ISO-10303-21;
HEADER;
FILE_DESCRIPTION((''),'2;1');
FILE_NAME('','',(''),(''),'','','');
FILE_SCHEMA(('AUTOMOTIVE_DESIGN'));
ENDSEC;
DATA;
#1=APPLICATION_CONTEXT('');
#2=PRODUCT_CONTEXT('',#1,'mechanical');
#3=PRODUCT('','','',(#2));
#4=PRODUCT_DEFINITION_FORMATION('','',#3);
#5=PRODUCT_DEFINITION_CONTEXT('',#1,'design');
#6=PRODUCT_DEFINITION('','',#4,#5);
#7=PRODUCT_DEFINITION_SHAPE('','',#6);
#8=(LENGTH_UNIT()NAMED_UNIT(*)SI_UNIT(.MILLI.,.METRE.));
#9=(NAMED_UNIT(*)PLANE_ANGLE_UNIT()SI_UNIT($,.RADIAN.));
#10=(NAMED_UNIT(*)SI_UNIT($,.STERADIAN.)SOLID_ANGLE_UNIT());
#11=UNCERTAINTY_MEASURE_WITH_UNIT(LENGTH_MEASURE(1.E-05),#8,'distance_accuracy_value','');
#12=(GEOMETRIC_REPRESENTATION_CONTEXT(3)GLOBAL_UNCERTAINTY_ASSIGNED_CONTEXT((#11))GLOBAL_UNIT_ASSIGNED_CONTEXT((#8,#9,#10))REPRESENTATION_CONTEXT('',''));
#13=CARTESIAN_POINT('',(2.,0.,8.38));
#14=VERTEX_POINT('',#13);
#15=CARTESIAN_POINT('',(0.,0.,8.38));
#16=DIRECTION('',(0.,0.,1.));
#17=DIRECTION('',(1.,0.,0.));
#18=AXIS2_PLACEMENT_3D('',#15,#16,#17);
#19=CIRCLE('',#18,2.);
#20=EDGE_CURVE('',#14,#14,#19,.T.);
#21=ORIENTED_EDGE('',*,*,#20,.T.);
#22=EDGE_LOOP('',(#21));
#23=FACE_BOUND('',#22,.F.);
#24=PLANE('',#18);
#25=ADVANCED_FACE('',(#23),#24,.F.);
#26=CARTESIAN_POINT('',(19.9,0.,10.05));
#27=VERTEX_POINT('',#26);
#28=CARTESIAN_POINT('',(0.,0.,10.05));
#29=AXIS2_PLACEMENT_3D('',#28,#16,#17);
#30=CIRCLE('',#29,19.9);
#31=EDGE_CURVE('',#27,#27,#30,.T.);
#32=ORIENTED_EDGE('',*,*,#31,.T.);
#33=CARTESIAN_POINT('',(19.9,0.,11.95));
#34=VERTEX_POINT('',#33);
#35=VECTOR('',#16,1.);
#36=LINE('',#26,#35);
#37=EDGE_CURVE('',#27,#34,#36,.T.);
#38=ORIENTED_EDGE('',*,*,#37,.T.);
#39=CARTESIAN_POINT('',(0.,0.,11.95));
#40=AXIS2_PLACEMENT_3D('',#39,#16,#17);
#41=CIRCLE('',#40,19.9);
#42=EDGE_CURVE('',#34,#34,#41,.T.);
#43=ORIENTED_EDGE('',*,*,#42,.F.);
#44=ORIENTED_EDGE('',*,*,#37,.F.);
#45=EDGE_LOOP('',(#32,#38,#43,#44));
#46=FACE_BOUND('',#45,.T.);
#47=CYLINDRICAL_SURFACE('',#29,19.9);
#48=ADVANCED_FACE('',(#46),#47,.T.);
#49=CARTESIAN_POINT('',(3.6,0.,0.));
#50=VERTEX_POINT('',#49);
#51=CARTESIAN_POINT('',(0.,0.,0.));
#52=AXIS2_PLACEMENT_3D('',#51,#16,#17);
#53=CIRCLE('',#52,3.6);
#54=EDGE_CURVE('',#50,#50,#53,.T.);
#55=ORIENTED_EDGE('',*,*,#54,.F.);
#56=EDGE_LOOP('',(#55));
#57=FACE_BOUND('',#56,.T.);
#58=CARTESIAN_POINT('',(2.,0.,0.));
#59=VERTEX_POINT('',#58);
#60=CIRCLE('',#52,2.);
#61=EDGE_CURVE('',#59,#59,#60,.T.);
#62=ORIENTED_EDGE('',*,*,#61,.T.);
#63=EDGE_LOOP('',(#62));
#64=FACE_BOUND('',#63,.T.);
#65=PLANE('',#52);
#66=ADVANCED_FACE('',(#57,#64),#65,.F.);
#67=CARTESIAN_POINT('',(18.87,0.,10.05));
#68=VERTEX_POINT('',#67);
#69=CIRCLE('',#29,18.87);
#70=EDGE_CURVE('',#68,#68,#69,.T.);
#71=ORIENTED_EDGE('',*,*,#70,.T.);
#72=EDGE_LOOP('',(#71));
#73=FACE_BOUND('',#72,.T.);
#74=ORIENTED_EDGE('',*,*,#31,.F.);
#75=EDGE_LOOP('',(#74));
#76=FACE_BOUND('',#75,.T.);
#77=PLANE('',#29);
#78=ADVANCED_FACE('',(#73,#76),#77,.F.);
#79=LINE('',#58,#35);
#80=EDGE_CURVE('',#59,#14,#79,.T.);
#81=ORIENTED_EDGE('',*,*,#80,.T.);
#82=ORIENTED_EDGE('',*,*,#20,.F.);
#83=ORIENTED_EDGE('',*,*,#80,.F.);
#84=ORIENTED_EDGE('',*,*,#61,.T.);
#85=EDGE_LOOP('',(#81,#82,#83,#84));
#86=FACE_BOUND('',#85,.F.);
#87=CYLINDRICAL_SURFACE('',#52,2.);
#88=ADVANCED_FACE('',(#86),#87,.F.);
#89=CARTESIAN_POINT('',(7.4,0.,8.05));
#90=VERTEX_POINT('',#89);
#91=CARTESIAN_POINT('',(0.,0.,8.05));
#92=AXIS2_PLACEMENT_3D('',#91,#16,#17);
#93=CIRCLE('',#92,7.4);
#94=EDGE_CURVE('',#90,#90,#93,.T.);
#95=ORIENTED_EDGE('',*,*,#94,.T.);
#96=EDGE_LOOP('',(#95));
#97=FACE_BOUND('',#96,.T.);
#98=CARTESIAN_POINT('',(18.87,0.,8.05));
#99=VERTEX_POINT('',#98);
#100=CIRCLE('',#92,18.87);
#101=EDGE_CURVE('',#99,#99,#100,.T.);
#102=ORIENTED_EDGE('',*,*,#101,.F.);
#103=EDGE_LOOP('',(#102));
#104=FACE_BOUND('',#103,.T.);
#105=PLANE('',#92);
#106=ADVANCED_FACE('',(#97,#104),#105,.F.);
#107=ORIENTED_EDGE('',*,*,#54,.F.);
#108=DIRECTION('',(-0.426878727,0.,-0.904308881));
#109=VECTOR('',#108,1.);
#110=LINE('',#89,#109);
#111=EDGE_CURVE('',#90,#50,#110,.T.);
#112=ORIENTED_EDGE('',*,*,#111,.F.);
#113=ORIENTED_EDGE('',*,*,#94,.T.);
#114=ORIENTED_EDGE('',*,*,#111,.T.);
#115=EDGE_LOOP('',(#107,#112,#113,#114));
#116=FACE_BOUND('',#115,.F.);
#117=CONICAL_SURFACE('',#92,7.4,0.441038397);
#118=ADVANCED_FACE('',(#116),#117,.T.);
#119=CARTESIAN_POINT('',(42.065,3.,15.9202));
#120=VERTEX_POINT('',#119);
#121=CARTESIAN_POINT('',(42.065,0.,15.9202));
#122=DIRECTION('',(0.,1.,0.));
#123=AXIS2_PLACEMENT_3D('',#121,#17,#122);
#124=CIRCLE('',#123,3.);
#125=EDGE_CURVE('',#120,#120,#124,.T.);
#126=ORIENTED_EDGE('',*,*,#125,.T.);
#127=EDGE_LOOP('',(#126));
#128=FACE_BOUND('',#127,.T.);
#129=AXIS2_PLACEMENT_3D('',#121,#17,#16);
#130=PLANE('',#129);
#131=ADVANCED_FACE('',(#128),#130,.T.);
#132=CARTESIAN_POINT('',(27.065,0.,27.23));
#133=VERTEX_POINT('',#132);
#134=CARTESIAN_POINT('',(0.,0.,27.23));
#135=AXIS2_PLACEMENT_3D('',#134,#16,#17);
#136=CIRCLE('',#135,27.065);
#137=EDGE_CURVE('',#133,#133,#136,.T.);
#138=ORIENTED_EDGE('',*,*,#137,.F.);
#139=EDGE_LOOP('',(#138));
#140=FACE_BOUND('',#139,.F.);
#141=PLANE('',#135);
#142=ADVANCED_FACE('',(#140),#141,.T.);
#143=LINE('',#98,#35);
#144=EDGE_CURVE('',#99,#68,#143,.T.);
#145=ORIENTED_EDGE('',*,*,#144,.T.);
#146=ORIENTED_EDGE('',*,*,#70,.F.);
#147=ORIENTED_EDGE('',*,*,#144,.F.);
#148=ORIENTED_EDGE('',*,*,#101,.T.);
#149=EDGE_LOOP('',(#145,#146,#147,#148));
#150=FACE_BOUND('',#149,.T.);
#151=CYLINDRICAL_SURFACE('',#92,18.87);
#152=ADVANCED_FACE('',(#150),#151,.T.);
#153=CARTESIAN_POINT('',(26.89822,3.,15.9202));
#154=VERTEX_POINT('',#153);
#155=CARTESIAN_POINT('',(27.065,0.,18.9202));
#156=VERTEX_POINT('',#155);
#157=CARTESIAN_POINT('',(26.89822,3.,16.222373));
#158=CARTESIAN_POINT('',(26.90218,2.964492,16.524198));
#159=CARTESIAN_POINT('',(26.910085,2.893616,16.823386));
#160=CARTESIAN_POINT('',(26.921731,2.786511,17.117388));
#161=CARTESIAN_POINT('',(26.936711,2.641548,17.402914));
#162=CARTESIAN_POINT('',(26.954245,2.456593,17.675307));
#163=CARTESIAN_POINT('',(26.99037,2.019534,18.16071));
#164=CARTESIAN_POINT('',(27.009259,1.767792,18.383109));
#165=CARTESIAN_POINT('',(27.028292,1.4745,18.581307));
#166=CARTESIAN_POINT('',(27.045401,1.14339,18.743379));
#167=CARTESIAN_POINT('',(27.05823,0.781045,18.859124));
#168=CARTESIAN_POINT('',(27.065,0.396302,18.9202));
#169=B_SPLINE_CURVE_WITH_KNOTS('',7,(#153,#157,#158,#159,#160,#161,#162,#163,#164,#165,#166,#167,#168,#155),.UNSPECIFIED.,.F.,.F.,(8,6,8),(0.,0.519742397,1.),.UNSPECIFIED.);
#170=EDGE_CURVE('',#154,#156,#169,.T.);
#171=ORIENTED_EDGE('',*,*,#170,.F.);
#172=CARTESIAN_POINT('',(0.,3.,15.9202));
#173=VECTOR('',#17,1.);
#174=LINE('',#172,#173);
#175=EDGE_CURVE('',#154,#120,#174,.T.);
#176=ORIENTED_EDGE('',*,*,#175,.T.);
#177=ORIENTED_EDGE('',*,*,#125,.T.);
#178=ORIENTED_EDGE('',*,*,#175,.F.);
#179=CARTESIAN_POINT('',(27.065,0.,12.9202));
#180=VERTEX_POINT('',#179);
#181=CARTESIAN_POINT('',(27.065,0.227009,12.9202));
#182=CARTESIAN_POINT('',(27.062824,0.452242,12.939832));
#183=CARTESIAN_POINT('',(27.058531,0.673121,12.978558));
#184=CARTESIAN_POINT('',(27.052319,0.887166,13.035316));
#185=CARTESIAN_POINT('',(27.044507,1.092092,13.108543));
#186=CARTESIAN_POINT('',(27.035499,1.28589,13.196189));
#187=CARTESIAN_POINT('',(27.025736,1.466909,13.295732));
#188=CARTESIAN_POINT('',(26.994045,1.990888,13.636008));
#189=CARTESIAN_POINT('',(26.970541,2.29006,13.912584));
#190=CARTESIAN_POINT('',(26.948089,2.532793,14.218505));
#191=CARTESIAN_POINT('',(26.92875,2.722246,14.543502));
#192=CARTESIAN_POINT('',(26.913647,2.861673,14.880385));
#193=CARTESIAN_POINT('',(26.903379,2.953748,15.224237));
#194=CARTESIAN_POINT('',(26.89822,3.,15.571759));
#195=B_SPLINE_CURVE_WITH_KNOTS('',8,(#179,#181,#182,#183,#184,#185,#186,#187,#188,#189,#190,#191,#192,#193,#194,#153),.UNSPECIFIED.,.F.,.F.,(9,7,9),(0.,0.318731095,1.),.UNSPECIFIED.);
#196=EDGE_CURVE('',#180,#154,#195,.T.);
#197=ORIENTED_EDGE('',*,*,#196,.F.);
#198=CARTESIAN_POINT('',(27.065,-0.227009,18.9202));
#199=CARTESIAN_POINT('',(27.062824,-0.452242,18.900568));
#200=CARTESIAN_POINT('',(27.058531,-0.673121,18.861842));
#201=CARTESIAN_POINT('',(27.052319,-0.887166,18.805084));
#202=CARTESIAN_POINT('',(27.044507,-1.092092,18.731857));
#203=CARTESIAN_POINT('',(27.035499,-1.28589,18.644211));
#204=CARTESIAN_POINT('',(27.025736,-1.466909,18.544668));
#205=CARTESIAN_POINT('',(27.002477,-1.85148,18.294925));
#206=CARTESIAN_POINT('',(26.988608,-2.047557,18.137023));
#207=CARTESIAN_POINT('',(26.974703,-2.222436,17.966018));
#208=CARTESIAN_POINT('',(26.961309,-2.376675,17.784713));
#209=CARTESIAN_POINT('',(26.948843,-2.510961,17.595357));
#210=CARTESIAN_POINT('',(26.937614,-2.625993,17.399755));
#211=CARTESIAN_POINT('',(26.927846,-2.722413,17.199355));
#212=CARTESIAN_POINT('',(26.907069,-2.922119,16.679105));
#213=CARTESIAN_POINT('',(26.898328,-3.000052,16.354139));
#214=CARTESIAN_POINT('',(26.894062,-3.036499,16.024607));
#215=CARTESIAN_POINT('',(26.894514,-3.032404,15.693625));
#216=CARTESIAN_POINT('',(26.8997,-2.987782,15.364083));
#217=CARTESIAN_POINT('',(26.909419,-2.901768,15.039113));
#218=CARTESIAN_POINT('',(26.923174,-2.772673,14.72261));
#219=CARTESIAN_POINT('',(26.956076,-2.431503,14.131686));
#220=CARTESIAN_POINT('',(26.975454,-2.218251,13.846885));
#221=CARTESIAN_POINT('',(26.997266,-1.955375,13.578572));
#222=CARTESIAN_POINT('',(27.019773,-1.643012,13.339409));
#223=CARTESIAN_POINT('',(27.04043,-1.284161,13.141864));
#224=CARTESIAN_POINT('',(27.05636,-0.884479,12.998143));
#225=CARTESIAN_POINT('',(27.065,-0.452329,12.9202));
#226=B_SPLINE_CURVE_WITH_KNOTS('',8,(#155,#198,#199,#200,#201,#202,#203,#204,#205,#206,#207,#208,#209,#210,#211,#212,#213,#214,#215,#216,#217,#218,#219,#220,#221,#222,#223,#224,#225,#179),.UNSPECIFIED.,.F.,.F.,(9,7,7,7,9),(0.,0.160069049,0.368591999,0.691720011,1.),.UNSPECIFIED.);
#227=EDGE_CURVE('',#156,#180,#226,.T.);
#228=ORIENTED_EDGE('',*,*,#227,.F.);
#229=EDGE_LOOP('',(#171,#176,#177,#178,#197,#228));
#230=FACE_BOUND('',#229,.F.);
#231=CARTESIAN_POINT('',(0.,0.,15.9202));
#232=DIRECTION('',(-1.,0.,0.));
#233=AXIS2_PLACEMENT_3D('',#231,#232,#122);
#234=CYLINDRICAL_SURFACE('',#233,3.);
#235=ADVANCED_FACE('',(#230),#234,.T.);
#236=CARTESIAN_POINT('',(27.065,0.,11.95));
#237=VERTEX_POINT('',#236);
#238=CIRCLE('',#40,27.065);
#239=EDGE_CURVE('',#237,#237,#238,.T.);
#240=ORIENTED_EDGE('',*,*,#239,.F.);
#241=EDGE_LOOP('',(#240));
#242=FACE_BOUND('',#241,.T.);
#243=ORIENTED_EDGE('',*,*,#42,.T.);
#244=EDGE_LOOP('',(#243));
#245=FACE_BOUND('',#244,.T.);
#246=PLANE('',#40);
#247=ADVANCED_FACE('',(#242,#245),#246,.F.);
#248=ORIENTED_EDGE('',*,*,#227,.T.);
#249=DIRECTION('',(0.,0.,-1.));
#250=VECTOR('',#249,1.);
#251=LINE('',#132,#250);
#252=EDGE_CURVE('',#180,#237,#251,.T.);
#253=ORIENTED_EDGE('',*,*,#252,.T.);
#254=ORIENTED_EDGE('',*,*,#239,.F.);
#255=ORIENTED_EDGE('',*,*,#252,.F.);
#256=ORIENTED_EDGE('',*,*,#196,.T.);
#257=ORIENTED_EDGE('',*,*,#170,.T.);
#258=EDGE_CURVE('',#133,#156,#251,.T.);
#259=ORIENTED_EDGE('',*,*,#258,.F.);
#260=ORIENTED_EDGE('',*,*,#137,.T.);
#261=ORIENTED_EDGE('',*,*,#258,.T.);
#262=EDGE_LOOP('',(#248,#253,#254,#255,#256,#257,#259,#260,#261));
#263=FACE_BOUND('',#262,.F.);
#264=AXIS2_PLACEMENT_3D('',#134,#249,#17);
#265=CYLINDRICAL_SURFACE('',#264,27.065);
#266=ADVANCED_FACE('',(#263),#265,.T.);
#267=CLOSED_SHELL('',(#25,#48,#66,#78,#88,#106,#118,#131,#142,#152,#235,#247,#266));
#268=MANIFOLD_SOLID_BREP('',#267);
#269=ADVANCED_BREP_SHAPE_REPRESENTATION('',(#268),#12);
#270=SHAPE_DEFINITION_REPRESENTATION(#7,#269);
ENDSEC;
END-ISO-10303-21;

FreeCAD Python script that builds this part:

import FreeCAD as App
import Part
import Sketcher

doc = App.newDocument("Part")
body = doc.addObject("PartDesign::Body", "Body")

sketch1 = body.newObject("Sketcher::SketchObject", "Sketch")
sketch1.AttachmentSupport = (doc.getObject("XZ_Plane"), [""])
sketch1.MapMode = "FlatFace"
sketch1.addGeometry([
    Part.LineSegment(App.Vector(27.1, 27.2, 0), App.Vector(0, 27.2, 0)),
    Part.LineSegment(App.Vector(0, 27.2, 0), App.Vector(0, 8.4, 0)),
    Part.LineSegment(App.Vector(0, 8.4, 0), App.Vector(2, 8.4, 0)),
    Part.LineSegment(App.Vector(2, 8.4, 0), App.Vector(2, 0, 0)),
    Part.LineSegment(App.Vector(2, 0, 0), App.Vector(3.6, 0, 0)),
    Part.LineSegment(App.Vector(3.6, 0, 0), App.Vector(7.4, 8.1, 0)),
    Part.LineSegment(App.Vector(7.4, 8.1, 0), App.Vector(18.9, 8.1, 0)),
    Part.LineSegment(App.Vector(18.9, 8.1, 0), App.Vector(18.9, 10.1, 0)),
    Part.LineSegment(App.Vector(18.9, 10.1, 0), App.Vector(19.9, 10.1, 0)),
    Part.LineSegment(App.Vector(19.9, 10.1, 0), App.Vector(19.9, 11.9, 0)),
    Part.LineSegment(App.Vector(19.9, 11.9, 0), App.Vector(27.1, 11.9, 0)),
    Part.LineSegment(App.Vector(27.1, 11.9, 0), App.Vector(27.1, 27.2, 0)),
], False)
sketch1.addConstraint([
    Sketcher.Constraint("Coincident", 0, 2, 1, 1),
    Sketcher.Constraint("Coincident", 1, 2, 2, 1),
    Sketcher.Constraint("Coincident", 2, 2, 3, 1),
    Sketcher.Constraint("Coincident", 3, 2, 4, 1),
    Sketcher.Constraint("Coincident", 4, 2, 5, 1),
    Sketcher.Constraint("Coincident", 5, 2, 6, 1),
    Sketcher.Constraint("Coincident", 6, 2, 7, 1),
    Sketcher.Constraint("Coincident", 7, 2, 8, 1),
    Sketcher.Constraint("Coincident", 8, 2, 9, 1),
    Sketcher.Constraint("Coincident", 9, 2, 10, 1),
    Sketcher.Constraint("Coincident", 10, 2, 11, 1),
    Sketcher.Constraint("Coincident", 11, 2, 0, 1),
    Sketcher.Constraint("Horizontal", 0),
    Sketcher.Constraint("Vertical", 1),
    Sketcher.Constraint("Horizontal", 2),
    Sketcher.Constraint("Vertical", 3),
    Sketcher.Constraint("Horizontal", 4),
    Sketcher.Constraint("Horizontal", 6),
    Sketcher.Constraint("Vertical", 7),
    Sketcher.Constraint("Horizontal", 8),
    Sketcher.Constraint("Vertical", 9),
    Sketcher.Constraint("Horizontal", 10),
    Sketcher.Constraint("Vertical", 11),
    Sketcher.Constraint("PointOnObject", 0, 2, -2),
    Sketcher.Constraint("PointOnObject", 3, 2, -1),
    Sketcher.Constraint("Equal", 2, 7),
    Sketcher.Constraint("DistanceX", 2, 1, 2, 2, 2.0),
    Sketcher.Constraint("DistanceX", 4, 1, 4, 2, 1.6),
    Sketcher.Constraint("DistanceY", 9, 1, 9, 2, 1.9),
    Sketcher.Constraint("DistanceX", 6, 1, 6, 2, 11.47),
    Sketcher.Constraint("DistanceX", 8, 1, 8, 2, 1.03),
    Sketcher.Constraint("DistanceY", 1, 2, 1, 1, 18.85),
    Sketcher.Constraint("DistanceY", 3, 2, 3, 1, 8.38),
    Sketcher.Constraint("DistanceY", 11, 1, 11, 2, 15.28),
    Sketcher.Constraint("DistanceX", -1, 1, 5, 2, 7.4),
    Sketcher.Constraint("DistanceX", 0, 2, 0, 1, 27.065),
])
revolution = body.newObject("PartDesign::Revolution", "Revolution")
revolution.Profile = sketch1
revolution.ReferenceAxis = (sketch1, ["V_Axis"])
revolution.Angle = 360

sketch2 = body.newObject("Sketcher::SketchObject", "Sketch001")
sketch2.AttachmentSupport = (doc.getObject("YZ_Plane"), [""])
sketch2.MapMode = "FlatFace"
sketch2.addGeometry(Part.Circle(App.Vector(0, 15.9, 0), App.Vector(0, 0, 1), 3), False)
sketch2.addConstraint([
    Sketcher.Constraint("PointOnObject", 0, 3, -2),
    Sketcher.Constraint("Diameter", 0, 6.0),
    Sketcher.Constraint("DistanceY", -1, 1, 0, 3, 15.9202),
])
pad1 = body.newObject("PartDesign::Pad", "Pad")
pad1.Profile = sketch2
pad1.Type = "TwoLengths"
pad1.Length = 42.065
pad1.Length2 = 3.3012

doc.recompute()
